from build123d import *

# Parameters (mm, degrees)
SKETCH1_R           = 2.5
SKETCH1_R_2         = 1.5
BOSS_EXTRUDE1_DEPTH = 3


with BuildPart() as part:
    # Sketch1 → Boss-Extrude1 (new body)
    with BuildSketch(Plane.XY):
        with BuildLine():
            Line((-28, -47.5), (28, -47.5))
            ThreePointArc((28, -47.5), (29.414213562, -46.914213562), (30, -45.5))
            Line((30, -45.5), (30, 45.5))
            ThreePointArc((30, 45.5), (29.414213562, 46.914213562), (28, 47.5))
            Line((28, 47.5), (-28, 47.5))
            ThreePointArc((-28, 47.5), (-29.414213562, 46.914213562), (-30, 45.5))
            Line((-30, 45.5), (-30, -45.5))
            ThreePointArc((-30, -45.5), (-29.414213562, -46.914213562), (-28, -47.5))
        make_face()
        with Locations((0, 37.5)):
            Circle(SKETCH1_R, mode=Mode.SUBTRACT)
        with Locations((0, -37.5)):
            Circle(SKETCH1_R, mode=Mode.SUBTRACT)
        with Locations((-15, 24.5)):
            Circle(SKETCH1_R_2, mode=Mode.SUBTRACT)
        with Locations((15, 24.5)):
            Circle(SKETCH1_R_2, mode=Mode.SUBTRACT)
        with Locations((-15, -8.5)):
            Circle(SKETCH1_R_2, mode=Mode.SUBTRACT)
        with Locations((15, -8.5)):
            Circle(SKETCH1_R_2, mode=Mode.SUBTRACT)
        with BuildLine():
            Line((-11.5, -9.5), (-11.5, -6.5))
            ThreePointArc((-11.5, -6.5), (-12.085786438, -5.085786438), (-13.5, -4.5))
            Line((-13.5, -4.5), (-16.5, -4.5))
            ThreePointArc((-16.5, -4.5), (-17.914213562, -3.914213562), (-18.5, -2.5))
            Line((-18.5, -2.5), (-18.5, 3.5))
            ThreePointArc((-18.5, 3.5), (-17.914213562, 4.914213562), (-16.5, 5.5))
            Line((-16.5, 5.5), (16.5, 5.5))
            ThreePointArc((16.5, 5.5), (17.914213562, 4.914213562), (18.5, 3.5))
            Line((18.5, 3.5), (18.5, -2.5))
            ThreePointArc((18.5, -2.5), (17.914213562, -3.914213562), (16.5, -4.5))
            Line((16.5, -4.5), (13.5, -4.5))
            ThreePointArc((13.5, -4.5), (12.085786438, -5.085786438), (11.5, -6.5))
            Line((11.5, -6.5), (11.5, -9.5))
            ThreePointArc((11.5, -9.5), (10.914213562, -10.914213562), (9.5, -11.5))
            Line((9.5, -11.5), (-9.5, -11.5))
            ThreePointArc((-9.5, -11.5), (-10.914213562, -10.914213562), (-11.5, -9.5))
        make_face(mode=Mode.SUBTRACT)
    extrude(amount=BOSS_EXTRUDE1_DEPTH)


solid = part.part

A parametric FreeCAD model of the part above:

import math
import FreeCAD as App
import Part
import Sketcher

V = App.Vector

doc = App.newDocument("Part")
body = doc.addObject("PartDesign::Body", "Body")

# Sketch on XY plane
sketch1 = body.newObject("Sketcher::SketchObject", "Sketch")
sketch1.AttachmentSupport = (doc.getObject("XY_Plane"), [""])
sketch1.MapMode = "FlatFace"
sketch1.addGeometry(Part.LineSegment(V(-28, -47.5, 0), V(28, -47.5, 0)), False)
sketch1.addGeometry(Part.ArcOfCircle(Part.Circle(V(28, -45.5, 0), V(0, 0, 1), 2), math.radians(-90), math.radians(0)), False)
sketch1.addGeometry(Part.LineSegment(V(30, -45.5, 0), V(30, 45.5, 0)), False)
sketch1.addGeometry(Part.ArcOfCircle(Part.Circle(V(28, 45.5, 0), V(0, 0, 1), 2), math.radians(0), math.radians(90)), False)
sketch1.addGeometry(Part.LineSegment(V(28, 47.5, 0), V(-28, 47.5, 0)), False)
sketch1.addGeometry(Part.ArcOfCircle(Part.Circle(V(-28, 45.5, 0), V(0, 0, 1), 2), math.radians(90), math.radians(180)), False)
sketch1.addGeometry(Part.LineSegment(V(-30, 45.5, 0), V(-30, -45.5, 0)), False)
sketch1.addGeometry(Part.ArcOfCircle(Part.Circle(V(-28, -45.5, 0), V(0, 0, 1), 2), math.radians(-180), math.radians(-90)), False)
sketch1.addGeometry(Part.Circle(V(-15, -8.5, 0), V(0, 0, 1), 1.5), False)
sketch1.addGeometry(Part.Circle(V(0, -37.5, 0), V(0, 0, 1), 2.5), False)
sketch1.addGeometry(Part.ArcOfCircle(Part.Circle(V(-9.5, -9.5, 0), V(0, 0, 1), 2), math.radians(-180), math.radians(-90)), False)
sketch1.addGeometry(Part.LineSegment(V(-11.5, -9.5, 0), V(-11.5, -6.5, 0)), False)
sketch1.addGeometry(Part.ArcOfCircle(Part.Circle(V(-13.5, -6.5, 0), V(0, 0, 1), 2), math.radians(0), math.radians(90)), False)
sketch1.addGeometry(Part.LineSegment(V(-13.5, -4.5, 0), V(-16.5, -4.5, 0)), False)
sketch1.addGeometry(Part.ArcOfCircle(Part.Circle(V(-16.5, -2.5, 0), V(0, 0, 1), 2), math.radians(-180), math.radians(-90)), False)
sketch1.addGeometry(Part.LineSegment(V(-18.5, -2.5, 0), V(-18.5, 3.5, 0)), False)
sketch1.addGeometry(Part.ArcOfCircle(Part.Circle(V(-16.5, 3.5, 0), V(0, 0, 1), 2), math.radians(90), math.radians(180)), False)
sketch1.addGeometry(Part.LineSegment(V(-16.5, 5.5, 0), V(16.5, 5.5, 0)), False)
sketch1.addGeometry(Part.ArcOfCircle(Part.Circle(V(16.5, 3.5, 0), V(0, 0, 1), 2), math.radians(0), math.radians(90)), False)
sketch1.addGeometry(Part.LineSegment(V(18.5, 3.5, 0), V(18.5, -2.5, 0)), False)
sketch1.addGeometry(Part.ArcOfCircle(Part.Circle(V(16.5, -2.5, 0), V(0, 0, 1), 2), math.radians(-90), math.radians(0)), False)
sketch1.addGeometry(Part.LineSegment(V(16.5, -4.5, 0), V(13.5, -4.5, 0)), False)
sketch1.addGeometry(Part.ArcOfCircle(Part.Circle(V(13.5, -6.5, 0), V(0, 0, 1), 2), math.radians(90), math.radians(180)), False)
sketch1.addGeometry(Part.LineSegment(V(11.5, -6.5, 0), V(11.5, -9.5, 0)), False)
sketch1.addGeometry(Part.ArcOfCircle(Part.Circle(V(9.5, -9.5, 0), V(0, 0, 1), 2), math.radians(-90), math.radians(0)), False)
sketch1.addGeometry(Part.LineSegment(V(9.5, -11.5, 0), V(-9.5, -11.5, 0)), False)
sketch1.addGeometry(Part.Circle(V(15, -8.5, 0), V(0, 0, 1), 1.5), False)
sketch1.addGeometry(Part.Circle(V(-15, 24.5, 0), V(0, 0, 1), 1.5), False)
sketch1.addGeometry(Part.Circle(V(0, 37.5, 0), V(0, 0, 1), 2.5), False)
sketch1.addGeometry(Part.Circle(V(15, 24.5, 0), V(0, 0, 1), 1.5), False)
sketch1.addConstraint(Sketcher.Constraint("Tangent", 0, 2, 1, 1))
sketch1.addConstraint(Sketcher.Constraint("Tangent", 1, 2, 2, 1))
sketch1.addConstraint(Sketcher.Constraint("Tangent", 2, 2, 3, 1))
sketch1.addConstraint(Sketcher.Constraint("Tangent", 3, 2, 4, 1))
sketch1.addConstraint(Sketcher.Constraint("Tangent", 4, 2, 5, 1))
sketch1.addConstraint(Sketcher.Constraint("Tangent", 5, 2, 6, 1))
sketch1.addConstraint(Sketcher.Constraint("Tangent", 6, 2, 7, 1))
sketch1.addConstraint(Sketcher.Constraint("Tangent", 7, 2, 0, 1))
sketch1.addConstraint(Sketcher.Constraint("Tangent", 10, 1, 11, 1))
sketch1.addConstraint(Sketcher.Constraint("Tangent", 11, 2, 12, 1))
sketch1.addConstraint(Sketcher.Constraint("Tangent", 12, 2, 13, 1))
sketch1.addConstraint(Sketcher.Constraint("Tangent", 13, 2, 14, 2))
sketch1.addConstraint(Sketcher.Constraint("Tangent", 14, 1, 15, 1))
sketch1.addConstraint(Sketcher.Constraint("Tangent", 15, 2, 16, 2))
sketch1.addConstraint(Sketcher.Constraint("Tangent", 16, 1, 17, 1))
sketch1.addConstraint(Sketcher.Constraint("Tangent", 17, 2, 18, 2))
sketch1.addConstraint(Sketcher.Constraint("Tangent", 18, 1, 19, 1))
sketch1.addConstraint(Sketcher.Constraint("Tangent", 19, 2, 20, 2))
sketch1.addConstraint(Sketcher.Constraint("Tangent", 20, 1, 21, 1))
sketch1.addConstraint(Sketcher.Constraint("Tangent", 21, 2, 22, 1))
sketch1.addConstraint(Sketcher.Constraint("Tangent", 22, 2, 23, 1))
sketch1.addConstraint(Sketcher.Constraint("Tangent", 23, 2, 24, 2))
sketch1.addConstraint(Sketcher.Constraint("Tangent", 24, 1, 25, 1))
sketch1.addConstraint(Sketcher.Constraint("Tangent", 25, 2, 10, 2))
sketch1.addConstraint(Sketcher.Constraint("Horizontal", 0))
sketch1.addConstraint(Sketcher.Constraint("Vertical", 2))
sketch1.addConstraint(Sketcher.Constraint("Horizontal", 4))
sketch1.addConstraint(Sketcher.Constraint("Vertical", 6))
sketch1.addConstraint(Sketcher.Constraint("Vertical", 11))
sketch1.addConstraint(Sketcher.Constraint("Horizontal", 13))
sketch1.addConstraint(Sketcher.Constraint("Vertical", 15))
sketch1.addConstraint(Sketcher.Constraint("Horizontal", 17))
sketch1.addConstraint(Sketcher.Constraint("Vertical", 19))
sketch1.addConstraint(Sketcher.Constraint("Horizontal", 21))
sketch1.addConstraint(Sketcher.Constraint("Vertical", 23))
sketch1.addConstraint(Sketcher.Constraint("Horizontal", 25))
sketch1.addConstraint(Sketcher.Constraint("Equal", 1, 3))
sketch1.addConstraint(Sketcher.Constraint("Equal", 3, 5))
sketch1.addConstraint(Sketcher.Constraint("Equal", 5, 7))
sketch1.addConstraint(Sketcher.Constraint("Equal", 7, 10))
sketch1.addConstraint(Sketcher.Constraint("Equal", 10, 12))
sketch1.addConstraint(Sketcher.Constraint("Equal", 12, 14))
sketch1.addConstraint(Sketcher.Constraint("Equal", 14, 16))
sketch1.addConstraint(Sketcher.Constraint("Equal", 16, 18))
sketch1.addConstraint(Sketcher.Constraint("Equal", 18, 20))
sketch1.addConstraint(Sketcher.Constraint("Equal", 20, 22))
sketch1.addConstraint(Sketcher.Constraint("Equal", 22, 24))
sketch1.addConstraint(Sketcher.Constraint("Equal", 8, 26))
sketch1.addConstraint(Sketcher.Constraint("Equal", 26, 27))
sketch1.addConstraint(Sketcher.Constraint("Equal", 9, 28))
sketch1.addConstraint(Sketcher.Constraint("Equal", 27, 29))
sketch1.addConstraint(Sketcher.Constraint("Symmetric", 1, 3, 5, 3, -1, 1))
sketch1.addConstraint(Sketcher.Constraint("Symmetric", 9, 3, 28, 3, -1, 1))
sketch1.addConstraint(Sketcher.Constraint("Symmetric", 14, 3, 20, 3, -2))
sketch1.addConstraint(Sketcher.Constraint("Symmetric", 8, 3, 26, 3, -2))
sketch1.addConstraint(Sketcher.Constraint("Symmetric", 27, 3, 29, 3, -2))
sketch1.addConstraint(Sketcher.Constraint("PointOnObject", 9, 3, -2))
sketch1.addConstraint(Sketcher.Constraint("Vertical", 8, 3, 27, 3))
sketch1.addConstraint(Sketcher.Constraint("Equal", 13, 21))
sketch1.addConstraint(Sketcher.Constraint("Equal", 21, 11))
sketch1.addConstraint(Sketcher.Constraint("Diameter", 8, 3.0))
sketch1.addConstraint(Sketcher.Constraint("Diameter", 9, 5.0))
sketch1.addConstraint(Sketcher.Constraint("Radius", 1, 2.0))
sketch1.addConstraint(Sketcher.Constraint("DistanceX", 0, 1, 0, 2, 56.0))
sketch1.addConstraint(Sketcher.Constraint("DistanceX", 13, 2, 13, 1, 3.0))
sketch1.addConstraint(Sketcher.Constraint("DistanceX", 17, 1, 17, 2, 33.0))
sketch1.addConstraint(Sketcher.Constraint("DistanceY", 2, 1, 2, 2, 91.0))
sketch1.addConstraint(Sketcher.Constraint("DistanceY", 15, 1, 15, 2, 6.0))
sketch1.addConstraint(Sketcher.Constraint("DistanceX", 8, 3, -1, 1, 15.0))
sketch1.addConstraint(Sketcher.Constraint("DistanceY", 7, 3, 8, 3, 37.0))
sketch1.addConstraint(Sketcher.Constraint("DistanceY", 1, 3, 9, 3, 8.0))
sketch1.addConstraint(Sketcher.Constraint("DistanceY", 10, 3, 8, 3, 1.0))
sketch1.addConstraint(Sketcher.Constraint("DistanceY", 16, 3, 27, 3, 21.0))
pad1 = body.newObject("PartDesign::Pad", "Pad")
pad1.Profile = sketch1
pad1.Length = 3

doc.recompute()
